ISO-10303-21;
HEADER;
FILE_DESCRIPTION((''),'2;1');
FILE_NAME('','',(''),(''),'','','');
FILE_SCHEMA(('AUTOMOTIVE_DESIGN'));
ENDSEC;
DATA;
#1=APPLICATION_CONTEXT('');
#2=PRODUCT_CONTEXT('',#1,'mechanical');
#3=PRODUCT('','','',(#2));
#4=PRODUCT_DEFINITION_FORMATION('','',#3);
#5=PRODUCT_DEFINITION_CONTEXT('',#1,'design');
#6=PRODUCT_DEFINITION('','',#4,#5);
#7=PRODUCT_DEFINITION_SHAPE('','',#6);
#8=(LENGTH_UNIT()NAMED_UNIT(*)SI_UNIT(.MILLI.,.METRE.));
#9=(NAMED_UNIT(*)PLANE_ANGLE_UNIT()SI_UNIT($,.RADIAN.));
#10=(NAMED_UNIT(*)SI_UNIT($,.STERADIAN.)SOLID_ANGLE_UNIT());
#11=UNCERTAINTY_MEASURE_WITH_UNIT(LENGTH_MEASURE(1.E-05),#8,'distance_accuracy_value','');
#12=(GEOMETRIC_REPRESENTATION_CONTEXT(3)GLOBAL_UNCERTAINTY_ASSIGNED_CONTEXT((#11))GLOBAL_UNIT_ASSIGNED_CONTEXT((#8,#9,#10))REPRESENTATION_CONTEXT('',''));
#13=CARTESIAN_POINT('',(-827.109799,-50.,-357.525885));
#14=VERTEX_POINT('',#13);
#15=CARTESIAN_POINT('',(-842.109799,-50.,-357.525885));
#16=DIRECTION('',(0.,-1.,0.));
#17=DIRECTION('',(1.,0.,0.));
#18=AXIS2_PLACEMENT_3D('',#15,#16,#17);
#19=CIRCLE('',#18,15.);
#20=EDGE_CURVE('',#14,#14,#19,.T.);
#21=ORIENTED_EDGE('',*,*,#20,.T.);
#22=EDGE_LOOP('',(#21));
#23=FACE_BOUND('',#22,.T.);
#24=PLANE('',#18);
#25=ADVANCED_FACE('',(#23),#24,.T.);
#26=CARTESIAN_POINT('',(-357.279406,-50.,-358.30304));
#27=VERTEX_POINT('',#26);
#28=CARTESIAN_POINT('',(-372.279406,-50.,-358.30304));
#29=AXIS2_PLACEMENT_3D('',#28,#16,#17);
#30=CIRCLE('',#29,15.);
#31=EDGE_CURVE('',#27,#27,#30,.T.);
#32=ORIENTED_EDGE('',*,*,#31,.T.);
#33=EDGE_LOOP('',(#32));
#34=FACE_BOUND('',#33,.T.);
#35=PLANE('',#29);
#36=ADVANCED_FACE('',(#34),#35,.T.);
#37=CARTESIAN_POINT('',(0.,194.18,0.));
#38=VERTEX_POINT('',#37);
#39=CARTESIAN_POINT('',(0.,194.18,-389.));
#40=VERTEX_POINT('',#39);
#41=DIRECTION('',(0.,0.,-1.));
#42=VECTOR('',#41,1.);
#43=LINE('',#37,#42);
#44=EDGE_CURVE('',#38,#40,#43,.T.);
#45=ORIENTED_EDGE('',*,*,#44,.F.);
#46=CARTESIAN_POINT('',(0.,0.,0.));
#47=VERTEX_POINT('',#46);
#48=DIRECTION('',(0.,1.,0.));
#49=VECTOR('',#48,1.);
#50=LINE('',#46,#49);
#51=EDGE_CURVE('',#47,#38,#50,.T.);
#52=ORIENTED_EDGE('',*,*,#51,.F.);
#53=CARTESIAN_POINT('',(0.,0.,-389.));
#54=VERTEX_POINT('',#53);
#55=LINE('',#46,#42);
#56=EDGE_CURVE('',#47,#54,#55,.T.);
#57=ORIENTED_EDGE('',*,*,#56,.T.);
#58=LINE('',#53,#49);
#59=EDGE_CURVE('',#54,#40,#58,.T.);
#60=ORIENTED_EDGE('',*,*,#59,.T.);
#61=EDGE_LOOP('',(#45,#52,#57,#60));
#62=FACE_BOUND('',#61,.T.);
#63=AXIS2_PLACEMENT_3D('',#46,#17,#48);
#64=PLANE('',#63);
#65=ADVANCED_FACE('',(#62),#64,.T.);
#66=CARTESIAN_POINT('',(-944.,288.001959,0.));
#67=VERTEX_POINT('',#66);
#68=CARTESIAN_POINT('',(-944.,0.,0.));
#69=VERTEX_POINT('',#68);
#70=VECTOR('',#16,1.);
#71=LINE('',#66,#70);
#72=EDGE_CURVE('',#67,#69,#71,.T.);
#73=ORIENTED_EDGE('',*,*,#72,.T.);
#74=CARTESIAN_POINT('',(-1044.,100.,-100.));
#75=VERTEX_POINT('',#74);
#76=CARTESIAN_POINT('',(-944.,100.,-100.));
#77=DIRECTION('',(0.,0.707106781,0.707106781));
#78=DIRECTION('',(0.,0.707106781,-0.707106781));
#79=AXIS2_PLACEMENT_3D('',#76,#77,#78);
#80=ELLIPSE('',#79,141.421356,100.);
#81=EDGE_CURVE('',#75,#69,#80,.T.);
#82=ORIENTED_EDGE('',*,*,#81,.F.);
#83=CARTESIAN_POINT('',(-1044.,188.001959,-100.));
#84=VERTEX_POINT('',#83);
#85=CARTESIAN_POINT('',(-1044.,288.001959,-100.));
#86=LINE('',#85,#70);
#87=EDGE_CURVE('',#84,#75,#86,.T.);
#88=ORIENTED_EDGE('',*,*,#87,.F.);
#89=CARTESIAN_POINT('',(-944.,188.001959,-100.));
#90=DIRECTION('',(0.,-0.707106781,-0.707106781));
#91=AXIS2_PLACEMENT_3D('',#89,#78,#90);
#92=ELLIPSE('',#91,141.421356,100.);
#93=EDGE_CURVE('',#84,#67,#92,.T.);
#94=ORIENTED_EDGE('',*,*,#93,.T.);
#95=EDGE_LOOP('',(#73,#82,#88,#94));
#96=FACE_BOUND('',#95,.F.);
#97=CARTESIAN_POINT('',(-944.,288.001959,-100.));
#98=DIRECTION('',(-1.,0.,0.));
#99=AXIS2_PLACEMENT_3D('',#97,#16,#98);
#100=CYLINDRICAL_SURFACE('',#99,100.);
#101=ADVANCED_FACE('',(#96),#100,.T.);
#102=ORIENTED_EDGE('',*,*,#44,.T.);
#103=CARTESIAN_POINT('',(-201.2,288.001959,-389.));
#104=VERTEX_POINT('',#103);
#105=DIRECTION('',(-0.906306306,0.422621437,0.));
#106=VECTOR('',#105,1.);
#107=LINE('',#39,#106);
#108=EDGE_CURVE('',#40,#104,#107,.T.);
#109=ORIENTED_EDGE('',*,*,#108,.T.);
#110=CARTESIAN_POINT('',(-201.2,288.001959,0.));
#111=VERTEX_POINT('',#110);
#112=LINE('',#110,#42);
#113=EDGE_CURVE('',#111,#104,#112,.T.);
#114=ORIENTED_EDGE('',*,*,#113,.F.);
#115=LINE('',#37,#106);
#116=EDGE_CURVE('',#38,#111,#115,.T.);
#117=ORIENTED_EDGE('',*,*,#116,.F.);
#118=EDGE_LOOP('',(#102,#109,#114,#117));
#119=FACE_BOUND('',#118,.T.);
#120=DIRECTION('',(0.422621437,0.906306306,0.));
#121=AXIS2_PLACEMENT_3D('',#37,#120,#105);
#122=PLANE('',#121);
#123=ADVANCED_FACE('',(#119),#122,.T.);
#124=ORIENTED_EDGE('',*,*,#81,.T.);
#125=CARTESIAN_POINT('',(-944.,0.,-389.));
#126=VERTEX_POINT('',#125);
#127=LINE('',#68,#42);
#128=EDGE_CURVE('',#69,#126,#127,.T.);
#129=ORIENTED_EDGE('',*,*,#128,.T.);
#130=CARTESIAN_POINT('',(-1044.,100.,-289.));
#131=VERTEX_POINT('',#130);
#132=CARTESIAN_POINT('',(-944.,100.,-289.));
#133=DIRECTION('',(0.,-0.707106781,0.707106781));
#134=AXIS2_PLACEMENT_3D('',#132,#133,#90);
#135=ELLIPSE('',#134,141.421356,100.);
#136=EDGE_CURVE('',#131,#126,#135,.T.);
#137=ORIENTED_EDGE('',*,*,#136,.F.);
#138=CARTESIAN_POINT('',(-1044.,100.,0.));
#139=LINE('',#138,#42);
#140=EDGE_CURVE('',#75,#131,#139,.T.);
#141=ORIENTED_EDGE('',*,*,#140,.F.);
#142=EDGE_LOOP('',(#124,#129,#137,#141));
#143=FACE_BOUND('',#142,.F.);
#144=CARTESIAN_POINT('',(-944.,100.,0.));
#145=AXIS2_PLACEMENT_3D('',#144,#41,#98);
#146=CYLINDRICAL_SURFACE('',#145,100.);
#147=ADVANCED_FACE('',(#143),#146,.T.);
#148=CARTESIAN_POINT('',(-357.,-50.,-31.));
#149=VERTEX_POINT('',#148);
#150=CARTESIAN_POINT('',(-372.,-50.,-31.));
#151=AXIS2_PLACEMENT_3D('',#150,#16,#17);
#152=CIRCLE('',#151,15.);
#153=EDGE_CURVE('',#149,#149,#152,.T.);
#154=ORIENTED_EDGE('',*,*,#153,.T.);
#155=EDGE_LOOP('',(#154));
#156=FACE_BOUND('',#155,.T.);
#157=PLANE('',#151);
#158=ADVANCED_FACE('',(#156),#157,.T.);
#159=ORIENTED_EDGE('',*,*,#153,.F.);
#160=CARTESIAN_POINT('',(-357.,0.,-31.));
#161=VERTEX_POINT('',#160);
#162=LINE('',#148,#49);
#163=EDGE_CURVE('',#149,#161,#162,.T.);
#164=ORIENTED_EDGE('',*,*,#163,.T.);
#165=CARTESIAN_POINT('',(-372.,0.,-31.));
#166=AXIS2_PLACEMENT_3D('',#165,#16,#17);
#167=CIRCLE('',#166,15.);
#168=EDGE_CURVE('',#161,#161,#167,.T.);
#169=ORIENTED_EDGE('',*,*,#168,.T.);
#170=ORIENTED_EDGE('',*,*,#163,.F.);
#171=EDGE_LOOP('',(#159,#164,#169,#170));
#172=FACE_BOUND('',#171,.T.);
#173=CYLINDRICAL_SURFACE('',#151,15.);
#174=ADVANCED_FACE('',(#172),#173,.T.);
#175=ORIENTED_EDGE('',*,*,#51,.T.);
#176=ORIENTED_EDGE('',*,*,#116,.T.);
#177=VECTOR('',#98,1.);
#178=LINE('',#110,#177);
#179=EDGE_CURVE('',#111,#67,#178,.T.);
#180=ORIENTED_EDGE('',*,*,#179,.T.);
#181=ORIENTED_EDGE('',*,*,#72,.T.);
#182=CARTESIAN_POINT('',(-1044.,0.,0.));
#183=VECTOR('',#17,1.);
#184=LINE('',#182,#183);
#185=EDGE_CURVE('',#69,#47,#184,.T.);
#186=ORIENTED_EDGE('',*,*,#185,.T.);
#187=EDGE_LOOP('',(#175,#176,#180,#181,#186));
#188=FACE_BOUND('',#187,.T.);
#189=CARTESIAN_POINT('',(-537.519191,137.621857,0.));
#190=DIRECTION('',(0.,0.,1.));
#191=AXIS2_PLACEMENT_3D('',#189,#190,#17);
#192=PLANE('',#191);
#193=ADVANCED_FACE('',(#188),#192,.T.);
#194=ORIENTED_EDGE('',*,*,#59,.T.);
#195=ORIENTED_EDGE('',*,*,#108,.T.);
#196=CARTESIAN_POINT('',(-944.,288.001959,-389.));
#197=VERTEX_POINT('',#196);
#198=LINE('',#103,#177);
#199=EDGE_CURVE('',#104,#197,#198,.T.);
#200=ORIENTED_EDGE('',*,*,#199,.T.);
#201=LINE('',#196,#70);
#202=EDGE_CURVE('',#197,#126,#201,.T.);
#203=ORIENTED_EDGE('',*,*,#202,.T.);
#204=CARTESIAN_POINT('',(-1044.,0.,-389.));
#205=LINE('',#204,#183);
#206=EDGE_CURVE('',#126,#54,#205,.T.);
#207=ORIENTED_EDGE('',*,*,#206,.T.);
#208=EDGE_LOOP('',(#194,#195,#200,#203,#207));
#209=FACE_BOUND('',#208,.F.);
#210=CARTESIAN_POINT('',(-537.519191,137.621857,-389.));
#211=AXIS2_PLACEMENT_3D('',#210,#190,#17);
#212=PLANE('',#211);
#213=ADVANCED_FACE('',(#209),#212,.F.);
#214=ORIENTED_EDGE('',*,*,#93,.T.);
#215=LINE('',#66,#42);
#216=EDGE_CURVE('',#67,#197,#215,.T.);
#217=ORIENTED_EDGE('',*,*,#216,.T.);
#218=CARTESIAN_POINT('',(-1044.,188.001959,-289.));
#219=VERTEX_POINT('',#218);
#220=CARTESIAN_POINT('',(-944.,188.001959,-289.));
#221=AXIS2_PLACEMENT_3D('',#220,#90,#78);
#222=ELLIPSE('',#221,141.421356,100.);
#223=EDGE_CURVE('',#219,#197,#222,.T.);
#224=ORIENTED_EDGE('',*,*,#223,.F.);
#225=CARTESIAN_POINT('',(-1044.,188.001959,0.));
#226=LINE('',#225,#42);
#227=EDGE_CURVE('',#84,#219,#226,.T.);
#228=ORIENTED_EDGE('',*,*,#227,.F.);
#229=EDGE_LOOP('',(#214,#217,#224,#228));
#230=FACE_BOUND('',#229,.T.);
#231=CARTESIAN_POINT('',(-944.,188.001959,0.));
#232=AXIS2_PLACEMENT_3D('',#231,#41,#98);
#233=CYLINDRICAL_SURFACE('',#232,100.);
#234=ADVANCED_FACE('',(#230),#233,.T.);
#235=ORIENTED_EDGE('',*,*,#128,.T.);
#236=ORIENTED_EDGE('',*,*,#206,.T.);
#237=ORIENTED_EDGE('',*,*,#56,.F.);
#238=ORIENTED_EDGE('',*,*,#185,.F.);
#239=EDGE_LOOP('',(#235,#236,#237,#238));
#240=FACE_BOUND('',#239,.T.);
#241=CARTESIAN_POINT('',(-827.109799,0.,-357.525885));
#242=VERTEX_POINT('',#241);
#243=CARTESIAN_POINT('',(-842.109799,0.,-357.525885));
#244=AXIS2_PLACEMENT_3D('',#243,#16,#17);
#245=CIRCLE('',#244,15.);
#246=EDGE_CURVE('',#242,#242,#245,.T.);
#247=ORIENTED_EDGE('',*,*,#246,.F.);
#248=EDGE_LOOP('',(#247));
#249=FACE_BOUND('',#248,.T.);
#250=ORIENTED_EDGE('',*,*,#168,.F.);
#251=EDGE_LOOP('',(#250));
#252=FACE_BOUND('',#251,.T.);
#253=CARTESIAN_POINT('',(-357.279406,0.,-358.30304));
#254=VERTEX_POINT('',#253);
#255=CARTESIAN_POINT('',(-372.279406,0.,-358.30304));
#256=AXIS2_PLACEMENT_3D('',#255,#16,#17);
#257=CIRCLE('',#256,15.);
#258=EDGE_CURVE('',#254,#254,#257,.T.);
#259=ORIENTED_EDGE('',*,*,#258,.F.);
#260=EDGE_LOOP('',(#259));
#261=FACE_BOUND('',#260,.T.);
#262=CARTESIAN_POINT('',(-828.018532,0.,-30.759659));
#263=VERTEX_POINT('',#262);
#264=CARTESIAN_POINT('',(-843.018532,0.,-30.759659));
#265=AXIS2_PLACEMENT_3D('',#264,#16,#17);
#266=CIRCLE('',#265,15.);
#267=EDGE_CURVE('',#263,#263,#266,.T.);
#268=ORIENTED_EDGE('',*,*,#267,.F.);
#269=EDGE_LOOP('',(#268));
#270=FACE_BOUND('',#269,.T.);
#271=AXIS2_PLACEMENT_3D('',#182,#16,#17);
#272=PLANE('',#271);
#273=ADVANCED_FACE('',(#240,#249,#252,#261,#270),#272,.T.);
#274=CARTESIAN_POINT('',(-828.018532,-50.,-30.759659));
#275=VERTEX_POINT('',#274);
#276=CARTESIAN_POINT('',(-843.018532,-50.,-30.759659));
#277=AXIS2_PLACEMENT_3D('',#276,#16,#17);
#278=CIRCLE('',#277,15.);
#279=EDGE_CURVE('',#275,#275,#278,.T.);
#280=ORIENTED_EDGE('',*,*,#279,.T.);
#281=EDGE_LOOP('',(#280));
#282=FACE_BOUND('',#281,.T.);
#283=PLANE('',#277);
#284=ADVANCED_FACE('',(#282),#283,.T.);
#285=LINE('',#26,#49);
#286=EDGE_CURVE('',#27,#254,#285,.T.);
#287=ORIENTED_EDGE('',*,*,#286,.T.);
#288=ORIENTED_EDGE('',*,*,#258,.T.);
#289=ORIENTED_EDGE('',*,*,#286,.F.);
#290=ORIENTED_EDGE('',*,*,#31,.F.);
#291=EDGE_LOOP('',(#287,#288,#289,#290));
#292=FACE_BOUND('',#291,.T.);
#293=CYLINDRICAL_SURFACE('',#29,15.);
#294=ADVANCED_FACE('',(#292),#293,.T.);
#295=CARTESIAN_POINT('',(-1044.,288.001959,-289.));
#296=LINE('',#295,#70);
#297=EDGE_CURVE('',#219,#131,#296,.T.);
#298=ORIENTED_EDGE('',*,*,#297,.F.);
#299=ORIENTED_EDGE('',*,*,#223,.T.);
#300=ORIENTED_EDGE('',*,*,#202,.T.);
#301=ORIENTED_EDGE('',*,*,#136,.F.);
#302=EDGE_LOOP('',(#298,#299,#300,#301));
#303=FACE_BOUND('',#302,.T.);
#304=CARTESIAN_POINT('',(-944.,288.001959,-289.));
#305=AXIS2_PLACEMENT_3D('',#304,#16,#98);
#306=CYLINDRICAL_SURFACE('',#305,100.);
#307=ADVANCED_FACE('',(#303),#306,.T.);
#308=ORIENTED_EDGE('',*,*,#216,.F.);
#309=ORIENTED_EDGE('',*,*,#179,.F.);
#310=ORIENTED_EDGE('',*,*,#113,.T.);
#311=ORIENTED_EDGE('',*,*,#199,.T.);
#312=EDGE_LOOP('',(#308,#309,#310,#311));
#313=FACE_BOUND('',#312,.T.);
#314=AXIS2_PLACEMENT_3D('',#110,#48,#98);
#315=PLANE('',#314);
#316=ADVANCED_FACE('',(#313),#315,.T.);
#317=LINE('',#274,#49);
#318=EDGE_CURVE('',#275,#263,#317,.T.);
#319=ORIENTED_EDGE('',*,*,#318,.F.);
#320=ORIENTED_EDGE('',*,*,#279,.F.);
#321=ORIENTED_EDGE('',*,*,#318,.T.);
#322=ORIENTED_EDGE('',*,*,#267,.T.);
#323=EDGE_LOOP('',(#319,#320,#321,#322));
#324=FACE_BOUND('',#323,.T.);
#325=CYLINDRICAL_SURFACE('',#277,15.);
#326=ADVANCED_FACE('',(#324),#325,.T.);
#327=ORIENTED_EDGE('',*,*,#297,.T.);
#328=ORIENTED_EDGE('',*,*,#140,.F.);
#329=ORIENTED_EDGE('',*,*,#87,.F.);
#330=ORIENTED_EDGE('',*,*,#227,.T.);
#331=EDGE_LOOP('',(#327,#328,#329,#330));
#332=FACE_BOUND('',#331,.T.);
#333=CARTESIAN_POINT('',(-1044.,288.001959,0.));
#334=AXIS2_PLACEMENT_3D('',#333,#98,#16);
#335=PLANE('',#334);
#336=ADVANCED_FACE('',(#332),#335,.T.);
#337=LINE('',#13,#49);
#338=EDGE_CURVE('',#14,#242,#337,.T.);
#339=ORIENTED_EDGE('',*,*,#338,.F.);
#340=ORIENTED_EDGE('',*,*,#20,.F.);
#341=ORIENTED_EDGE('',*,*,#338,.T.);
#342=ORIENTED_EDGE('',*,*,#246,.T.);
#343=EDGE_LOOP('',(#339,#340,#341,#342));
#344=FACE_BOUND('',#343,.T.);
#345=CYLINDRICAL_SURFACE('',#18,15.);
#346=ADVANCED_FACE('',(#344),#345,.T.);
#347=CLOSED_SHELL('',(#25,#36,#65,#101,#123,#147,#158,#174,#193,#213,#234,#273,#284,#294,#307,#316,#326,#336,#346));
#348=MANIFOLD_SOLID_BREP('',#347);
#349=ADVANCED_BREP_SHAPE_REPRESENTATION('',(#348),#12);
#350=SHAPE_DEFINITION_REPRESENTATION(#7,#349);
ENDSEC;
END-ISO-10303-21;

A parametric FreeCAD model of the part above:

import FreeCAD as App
import Part
import Sketcher
from FreeCAD import Vector
Q = App.Units.Quantity


def edges_at(feature, points):
    """Names of the edges that pass closest to the given points."""
    edges = feature.Shape.Edges
    near = lambda p: min(range(len(edges)), key=lambda i: edges[i].distToShape(Part.Vertex(*p))[0])
    return sorted({f"Edge{near(p) + 1}" for p in points})


def add_polygon(sketch, points):
    """Adds a closed chain of lines whose ends are joined by coincident constraints."""
    first, n = sketch.GeometryCount, len(points)
    for a, b in zip(points, points[1:] + points[:1]):
        sketch.addGeometry(Part.LineSegment(App.Vector(*a, 0), App.Vector(*b, 0)), False)
    for i in range(n):
        sketch.addConstraint(Sketcher.Constraint("Coincident", first + i, 2, first + (i + 1) % n, 1))

doc = App.newDocument("Part")
body = doc.addObject("PartDesign::Body", "Body")

sketch1 = body.newObject("Sketcher::SketchObject", "Sketch")
sketch1.AttachmentSupport = (doc.getObject("XY_Plane"), [""])
sketch1.MapMode = "FlatFace"
add_polygon(sketch1, [(-1044, 288.001959), (-1044, 0), (0, 0), (0, 194.18), (-201.2, 288.001959)])
sketch1.addConstraint([
    Sketcher.Constraint("Vertical", 0),
    Sketcher.Constraint("Horizontal", 1),
    Sketcher.Constraint("Vertical", 2),
    Sketcher.Constraint("Horizontal", 4),
    Sketcher.Constraint("Coincident", 1, 2, -1, 1),
    Sketcher.Constraint("DistanceX", 1, 1, 1, 2, Q("1044 mm")),
    Sketcher.Constraint("Distance", 3, Q("222 mm")),
    Sketcher.Constraint("DistanceX", 4, 2, 4, 1, Q("842.8 mm")),
    Sketcher.Constraint("DistanceY", 2, 1, 2, 2, Q("194.18 mm")),
])
pad1 = body.newObject("PartDesign::Pad", "Pad")
pad1.Profile = sketch1
pad1.Length = 389
pad1.Reversed = True
doc.recompute()

fillet = body.newObject("PartDesign::Fillet", "Fillet")
fillet.Base = (pad1, edges_at(pad1, [
    (-1044, 288.002, -194.5),
    (-1044, 0, -194.5),
    (-1044, 144.001, 0),
    (-1044, 144.001, -389),
]))
fillet.Radius = 100

sketch2 = body.newObject("Sketcher::SketchObject", "Sketch001")
sketch2.AttachmentSupport = (doc.getObject("XZ_Plane"), [""])
sketch2.MapMode = "FlatFace"
sketch2.AttachmentOffset = App.Placement(Vector(0, 0, 50), App.Rotation())
sketch2.addGeometry(Part.Circle(Vector(-842.109799, -357.525885, 0), Vector(0, 0, 1), 15), False)
sketch2.addConstraint([
    Sketcher.Constraint("Diameter", 0, Q("30 mm")),
    Sketcher.Constraint("DistanceX", 0, 3, -1, 1, Q("842.109799 mm")),
    Sketcher.Constraint("DistanceY", 0, 3, -1, 1, Q("357.525885 mm")),
])
pad2 = body.newObject("PartDesign::Pad", "Pad001")
pad2.Profile = sketch2
pad2.Length = 50
pad2.Reversed = True

sketch3 = body.newObject("Sketcher::SketchObject", "Sketch002")
sketch3.AttachmentSupport = (doc.getObject("XZ_Plane"), [""])
sketch3.MapMode = "FlatFace"
sketch3.AttachmentOffset = App.Placement(Vector(0, 0, 50), App.Rotation())
sketch3.addGeometry([
    Part.Circle(Vector(-372.279406, -358.30304, 0), Vector(0, 0, 1), 15),
    Part.Circle(Vector(-372, -31, 0), Vector(0, 0, 1), 15),
    Part.Circle(Vector(-843.018532, -30.759659, 0), Vector(0, 0, 1), 15),
], False)
sketch3.addConstraint([
    Sketcher.Constraint("Equal", 0, 1),
    Sketcher.Constraint("Equal", 1, 2),
    Sketcher.Constraint("Diameter", 0, Q("30 mm")),
    Sketcher.Constraint("DistanceX", 1, 3, -1, 1, Q("372 mm")),
    Sketcher.Constraint("DistanceY", 1, 3, -1, 1, Q("31 mm")),
    Sketcher.Constraint("DistanceY", 0, 3, -1, 1, Q("358.30304 mm")),
    Sketcher.Constraint("DistanceX", 2, 3, -1, 1, Q("843.018532 mm")),
    Sketcher.Constraint("DistanceY", 2, 3, -1, 1, Q("30.759659 mm")),
    Sketcher.Constraint("DistanceX", 0, 3, -1, 1, Q("372.279406 mm")),
])
pad3 = body.newObject("PartDesign::Pad", "Pad002")
pad3.Profile = sketch3
pad3.Length = 50
pad3.Reversed = True

doc.recompute()
